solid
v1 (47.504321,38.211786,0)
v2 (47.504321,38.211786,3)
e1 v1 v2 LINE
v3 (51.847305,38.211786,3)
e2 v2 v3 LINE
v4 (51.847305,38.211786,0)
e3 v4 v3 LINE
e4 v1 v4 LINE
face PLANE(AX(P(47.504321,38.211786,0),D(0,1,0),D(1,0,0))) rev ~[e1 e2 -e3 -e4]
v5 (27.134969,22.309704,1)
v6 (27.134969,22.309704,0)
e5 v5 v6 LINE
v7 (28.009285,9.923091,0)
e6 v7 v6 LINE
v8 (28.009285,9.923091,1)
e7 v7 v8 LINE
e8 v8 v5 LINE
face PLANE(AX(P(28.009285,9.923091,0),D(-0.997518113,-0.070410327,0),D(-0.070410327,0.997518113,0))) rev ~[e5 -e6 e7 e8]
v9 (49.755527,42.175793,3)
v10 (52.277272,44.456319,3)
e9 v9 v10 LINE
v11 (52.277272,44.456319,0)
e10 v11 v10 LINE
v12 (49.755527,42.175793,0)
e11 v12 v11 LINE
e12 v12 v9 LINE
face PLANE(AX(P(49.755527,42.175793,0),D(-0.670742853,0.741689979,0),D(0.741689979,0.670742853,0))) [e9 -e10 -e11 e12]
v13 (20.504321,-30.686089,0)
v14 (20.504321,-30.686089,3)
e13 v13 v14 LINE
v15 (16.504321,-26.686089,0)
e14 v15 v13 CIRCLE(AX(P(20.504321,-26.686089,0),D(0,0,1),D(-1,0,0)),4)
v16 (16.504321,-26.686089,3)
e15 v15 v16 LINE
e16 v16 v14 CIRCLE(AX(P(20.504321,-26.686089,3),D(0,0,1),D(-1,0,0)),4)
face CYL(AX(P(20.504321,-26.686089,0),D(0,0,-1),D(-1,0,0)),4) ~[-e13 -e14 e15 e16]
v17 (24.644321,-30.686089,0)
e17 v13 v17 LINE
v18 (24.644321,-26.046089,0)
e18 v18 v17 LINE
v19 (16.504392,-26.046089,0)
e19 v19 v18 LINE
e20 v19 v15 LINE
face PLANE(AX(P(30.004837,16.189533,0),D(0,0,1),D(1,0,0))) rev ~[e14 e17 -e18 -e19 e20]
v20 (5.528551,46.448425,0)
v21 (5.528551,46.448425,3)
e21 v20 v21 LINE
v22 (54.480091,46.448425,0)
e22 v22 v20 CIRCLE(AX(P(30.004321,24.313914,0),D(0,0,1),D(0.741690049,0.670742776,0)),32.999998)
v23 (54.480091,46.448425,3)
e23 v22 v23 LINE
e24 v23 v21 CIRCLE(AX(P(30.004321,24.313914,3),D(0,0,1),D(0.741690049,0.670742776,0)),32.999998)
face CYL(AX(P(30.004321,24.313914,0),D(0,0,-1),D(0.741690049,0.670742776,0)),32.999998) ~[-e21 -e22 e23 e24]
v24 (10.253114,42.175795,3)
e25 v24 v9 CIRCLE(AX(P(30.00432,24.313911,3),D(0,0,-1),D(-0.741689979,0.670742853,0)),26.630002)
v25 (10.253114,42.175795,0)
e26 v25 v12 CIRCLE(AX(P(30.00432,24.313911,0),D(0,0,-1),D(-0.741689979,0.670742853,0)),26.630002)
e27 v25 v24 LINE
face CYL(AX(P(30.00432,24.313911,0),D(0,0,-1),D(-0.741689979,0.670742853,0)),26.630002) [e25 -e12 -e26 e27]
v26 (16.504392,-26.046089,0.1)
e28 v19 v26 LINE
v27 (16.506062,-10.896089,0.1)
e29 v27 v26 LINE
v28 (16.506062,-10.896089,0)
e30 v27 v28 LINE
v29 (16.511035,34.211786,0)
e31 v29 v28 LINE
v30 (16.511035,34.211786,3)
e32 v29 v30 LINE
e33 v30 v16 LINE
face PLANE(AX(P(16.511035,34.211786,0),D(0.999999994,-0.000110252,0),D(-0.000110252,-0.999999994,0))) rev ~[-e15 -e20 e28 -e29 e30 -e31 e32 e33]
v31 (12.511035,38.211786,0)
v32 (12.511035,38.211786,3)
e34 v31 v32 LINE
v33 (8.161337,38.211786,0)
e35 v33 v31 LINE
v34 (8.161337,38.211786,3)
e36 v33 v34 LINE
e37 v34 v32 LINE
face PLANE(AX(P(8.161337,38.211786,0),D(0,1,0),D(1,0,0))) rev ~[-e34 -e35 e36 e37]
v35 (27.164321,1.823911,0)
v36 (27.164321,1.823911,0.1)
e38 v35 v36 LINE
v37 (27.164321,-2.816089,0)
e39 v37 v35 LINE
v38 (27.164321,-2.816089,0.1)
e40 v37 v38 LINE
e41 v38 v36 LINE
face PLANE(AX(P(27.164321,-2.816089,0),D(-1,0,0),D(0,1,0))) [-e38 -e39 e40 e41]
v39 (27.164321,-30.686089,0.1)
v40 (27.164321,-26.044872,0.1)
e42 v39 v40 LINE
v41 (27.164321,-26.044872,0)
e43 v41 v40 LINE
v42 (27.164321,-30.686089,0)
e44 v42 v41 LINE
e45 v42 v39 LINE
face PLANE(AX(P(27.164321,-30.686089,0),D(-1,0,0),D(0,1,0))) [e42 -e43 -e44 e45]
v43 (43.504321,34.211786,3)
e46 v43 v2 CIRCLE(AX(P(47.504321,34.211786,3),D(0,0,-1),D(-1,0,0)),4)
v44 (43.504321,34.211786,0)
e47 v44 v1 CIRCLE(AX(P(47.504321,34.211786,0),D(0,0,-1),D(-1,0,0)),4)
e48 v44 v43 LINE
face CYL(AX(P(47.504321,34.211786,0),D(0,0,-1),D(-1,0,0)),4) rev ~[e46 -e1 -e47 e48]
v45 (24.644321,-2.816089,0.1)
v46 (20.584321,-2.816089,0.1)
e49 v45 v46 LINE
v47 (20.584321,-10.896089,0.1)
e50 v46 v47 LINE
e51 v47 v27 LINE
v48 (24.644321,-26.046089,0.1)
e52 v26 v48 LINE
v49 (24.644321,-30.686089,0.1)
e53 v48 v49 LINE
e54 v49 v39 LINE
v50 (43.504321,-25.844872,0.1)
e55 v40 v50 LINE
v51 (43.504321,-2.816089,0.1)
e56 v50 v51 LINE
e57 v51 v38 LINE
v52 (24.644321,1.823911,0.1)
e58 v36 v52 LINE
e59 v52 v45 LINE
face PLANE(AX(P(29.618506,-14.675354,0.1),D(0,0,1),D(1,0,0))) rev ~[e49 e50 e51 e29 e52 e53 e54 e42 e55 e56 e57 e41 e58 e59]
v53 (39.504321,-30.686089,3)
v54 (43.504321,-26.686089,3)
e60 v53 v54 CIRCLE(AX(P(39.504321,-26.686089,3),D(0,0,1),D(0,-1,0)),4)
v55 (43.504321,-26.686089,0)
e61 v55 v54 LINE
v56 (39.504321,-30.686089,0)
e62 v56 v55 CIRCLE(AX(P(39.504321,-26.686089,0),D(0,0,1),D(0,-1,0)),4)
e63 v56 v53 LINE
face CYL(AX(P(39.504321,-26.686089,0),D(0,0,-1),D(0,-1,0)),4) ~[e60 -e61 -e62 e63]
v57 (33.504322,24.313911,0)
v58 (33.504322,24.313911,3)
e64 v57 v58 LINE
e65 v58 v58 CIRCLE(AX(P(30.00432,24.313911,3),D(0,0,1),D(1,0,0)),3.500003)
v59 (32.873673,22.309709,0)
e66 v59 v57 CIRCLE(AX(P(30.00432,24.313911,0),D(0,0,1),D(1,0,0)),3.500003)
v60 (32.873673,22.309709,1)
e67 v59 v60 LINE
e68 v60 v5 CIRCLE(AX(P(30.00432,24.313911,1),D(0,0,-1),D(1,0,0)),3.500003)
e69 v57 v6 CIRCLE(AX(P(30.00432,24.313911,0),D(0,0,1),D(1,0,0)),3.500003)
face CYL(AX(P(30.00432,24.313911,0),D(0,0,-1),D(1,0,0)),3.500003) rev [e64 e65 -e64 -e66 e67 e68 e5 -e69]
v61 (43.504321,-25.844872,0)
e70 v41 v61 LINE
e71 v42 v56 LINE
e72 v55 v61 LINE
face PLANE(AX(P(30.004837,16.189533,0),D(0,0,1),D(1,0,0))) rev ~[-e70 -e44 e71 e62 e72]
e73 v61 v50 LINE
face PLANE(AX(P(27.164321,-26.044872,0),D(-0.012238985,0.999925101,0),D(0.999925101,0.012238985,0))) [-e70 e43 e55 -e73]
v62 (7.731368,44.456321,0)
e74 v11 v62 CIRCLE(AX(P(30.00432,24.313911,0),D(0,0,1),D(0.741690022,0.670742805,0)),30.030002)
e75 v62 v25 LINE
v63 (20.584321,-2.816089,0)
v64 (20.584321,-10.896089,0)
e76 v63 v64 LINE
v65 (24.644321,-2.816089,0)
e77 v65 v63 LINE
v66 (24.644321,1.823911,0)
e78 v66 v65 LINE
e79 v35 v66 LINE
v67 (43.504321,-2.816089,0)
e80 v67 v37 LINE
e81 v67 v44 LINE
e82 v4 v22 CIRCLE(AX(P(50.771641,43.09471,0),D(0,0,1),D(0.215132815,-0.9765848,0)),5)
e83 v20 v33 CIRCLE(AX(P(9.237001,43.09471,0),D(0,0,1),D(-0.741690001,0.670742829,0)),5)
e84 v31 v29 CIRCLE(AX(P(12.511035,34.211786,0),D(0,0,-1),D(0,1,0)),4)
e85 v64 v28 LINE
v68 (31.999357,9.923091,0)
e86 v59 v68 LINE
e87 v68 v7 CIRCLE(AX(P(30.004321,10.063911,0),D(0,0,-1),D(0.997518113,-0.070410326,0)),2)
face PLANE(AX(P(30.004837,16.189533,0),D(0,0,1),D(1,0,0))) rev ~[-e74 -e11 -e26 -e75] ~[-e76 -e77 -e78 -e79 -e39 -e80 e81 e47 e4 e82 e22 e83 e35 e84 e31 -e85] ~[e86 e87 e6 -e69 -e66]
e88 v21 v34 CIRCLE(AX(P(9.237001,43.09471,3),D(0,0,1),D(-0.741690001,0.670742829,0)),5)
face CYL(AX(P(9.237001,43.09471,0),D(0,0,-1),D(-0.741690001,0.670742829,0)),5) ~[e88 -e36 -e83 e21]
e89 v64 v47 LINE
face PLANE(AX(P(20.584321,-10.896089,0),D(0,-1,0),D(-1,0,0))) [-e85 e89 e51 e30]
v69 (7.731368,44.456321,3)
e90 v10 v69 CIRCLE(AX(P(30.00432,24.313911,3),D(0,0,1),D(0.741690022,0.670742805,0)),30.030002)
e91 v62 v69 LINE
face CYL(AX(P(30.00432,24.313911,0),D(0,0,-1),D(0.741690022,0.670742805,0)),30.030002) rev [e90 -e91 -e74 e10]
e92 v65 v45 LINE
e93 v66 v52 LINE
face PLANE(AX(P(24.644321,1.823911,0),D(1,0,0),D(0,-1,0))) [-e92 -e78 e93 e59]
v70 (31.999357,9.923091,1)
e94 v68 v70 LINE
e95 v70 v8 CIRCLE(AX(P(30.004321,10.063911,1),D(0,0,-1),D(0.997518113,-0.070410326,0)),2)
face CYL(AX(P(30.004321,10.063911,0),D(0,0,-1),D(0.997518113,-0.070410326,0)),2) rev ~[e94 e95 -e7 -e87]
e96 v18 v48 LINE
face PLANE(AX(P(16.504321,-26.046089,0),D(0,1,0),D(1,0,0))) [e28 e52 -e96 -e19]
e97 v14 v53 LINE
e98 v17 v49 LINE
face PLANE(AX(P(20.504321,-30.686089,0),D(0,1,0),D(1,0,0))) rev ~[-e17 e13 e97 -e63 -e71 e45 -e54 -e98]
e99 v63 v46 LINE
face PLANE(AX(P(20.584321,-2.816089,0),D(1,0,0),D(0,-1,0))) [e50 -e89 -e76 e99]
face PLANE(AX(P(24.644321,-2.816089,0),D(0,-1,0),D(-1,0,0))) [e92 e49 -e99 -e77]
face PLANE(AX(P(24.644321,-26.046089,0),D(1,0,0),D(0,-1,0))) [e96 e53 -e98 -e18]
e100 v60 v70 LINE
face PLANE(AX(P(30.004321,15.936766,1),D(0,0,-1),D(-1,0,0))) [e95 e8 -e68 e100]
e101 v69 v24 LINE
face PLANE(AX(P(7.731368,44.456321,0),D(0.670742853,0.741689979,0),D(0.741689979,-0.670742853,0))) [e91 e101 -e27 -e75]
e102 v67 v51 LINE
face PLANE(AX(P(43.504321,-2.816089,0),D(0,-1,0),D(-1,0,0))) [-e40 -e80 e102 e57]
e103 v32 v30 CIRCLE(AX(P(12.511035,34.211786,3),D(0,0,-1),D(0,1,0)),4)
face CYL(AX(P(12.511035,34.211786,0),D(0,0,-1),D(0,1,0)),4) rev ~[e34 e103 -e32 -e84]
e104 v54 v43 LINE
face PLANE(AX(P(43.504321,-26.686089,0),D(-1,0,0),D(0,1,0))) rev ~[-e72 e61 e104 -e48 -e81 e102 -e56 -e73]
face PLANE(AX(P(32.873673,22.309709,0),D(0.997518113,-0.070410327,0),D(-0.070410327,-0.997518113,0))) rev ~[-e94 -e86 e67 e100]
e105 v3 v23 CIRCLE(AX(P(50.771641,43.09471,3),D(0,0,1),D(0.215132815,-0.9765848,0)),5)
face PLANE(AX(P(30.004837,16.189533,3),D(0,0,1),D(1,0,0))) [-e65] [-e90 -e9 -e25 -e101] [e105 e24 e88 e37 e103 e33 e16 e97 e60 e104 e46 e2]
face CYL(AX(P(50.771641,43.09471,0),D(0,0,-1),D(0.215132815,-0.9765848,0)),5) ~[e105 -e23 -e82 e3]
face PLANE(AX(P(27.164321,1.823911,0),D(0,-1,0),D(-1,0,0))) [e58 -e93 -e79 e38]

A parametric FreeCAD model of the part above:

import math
import FreeCAD as App
import Part
import Sketcher
from FreeCAD import Vector


def add_polygon(sketch, points):
    """Adds a closed chain of lines whose ends are joined by coincident constraints."""
    first, n = sketch.GeometryCount, len(points)
    for a, b in zip(points, points[1:] + points[:1]):
        sketch.addGeometry(Part.LineSegment(App.Vector(*a, 0), App.Vector(*b, 0)), False)
    for i in range(n):
        sketch.addConstraint(Sketcher.Constraint("Coincident", first + i, 2, first + (i + 1) % n, 1))

doc = App.newDocument("Part")
body = doc.addObject("PartDesign::Body", "Body")

sketch1 = body.newObject("Sketcher::SketchObject", "Sketch")
sketch1.AttachmentSupport = (doc.getObject("XY_Plane"), [""])
sketch1.MapMode = "FlatFace"
sketch1.addGeometry(Part.LineSegment(Vector(47.5, 38.2, 0), Vector(51.8, 38.2, 0)), False)
sketch1.addGeometry(Part.ArcOfCircle(Part.Circle(Vector(50.8, 43.1, 0), Vector(0, 0, 1), 5), math.radians(-78), math.radians(42)), False)
sketch1.addGeometry(Part.ArcOfCircle(Part.Circle(Vector(30, 24.3, 0), Vector(0, 0, 1), 33), math.radians(42), math.radians(138)), False)
sketch1.addGeometry(Part.ArcOfCircle(Part.Circle(Vector(9.2, 43.1, 0), Vector(0, 0, 1), 5), math.radians(138), math.radians(258)), False)
sketch1.addGeometry(Part.LineSegment(Vector(8.2, 38.2, 0), Vector(12.5, 38.2, 0)), False)
sketch1.addGeometry(Part.ArcOfCircle(Part.Circle(Vector(12.5, 34.2, 0), Vector(0, 0, 1), 4), math.radians(0), math.radians(90)), False)
sketch1.addGeometry(Part.LineSegment(Vector(16.5, 34.2, 0), Vector(16.5, -26.7, 0)), False)
sketch1.addGeometry(Part.ArcOfCircle(Part.Circle(Vector(20.5, -26.7, 0), Vector(0, 0, 1), 4), math.radians(180), math.radians(270)), False)
sketch1.addGeometry(Part.LineSegment(Vector(20.5, -30.7, 0), Vector(39.5, -30.7, 0)), False)
sketch1.addGeometry(Part.ArcOfCircle(Part.Circle(Vector(39.5, -26.7, 0), Vector(0, 0, 1), 4), math.radians(-90), math.radians(0)), False)
sketch1.addGeometry(Part.LineSegment(Vector(43.5, -26.7, 0), Vector(43.5, 34.2, 0)), False)
sketch1.addGeometry(Part.ArcOfCircle(Part.Circle(Vector(47.5, 34.2, 0), Vector(0, 0, 1), 4), math.radians(90), math.radians(180)), False)
sketch1.addGeometry(Part.Circle(Vector(30, 24.3, 0), Vector(0, 0, 1), 3.5), False)
sketch1.addGeometry(Part.ArcOfCircle(Part.Circle(Vector(30, 24.3, 0), Vector(0, 0, 1), 30), math.radians(42), math.radians(138)), False)
sketch1.addGeometry(Part.LineSegment(Vector(52.3, 44.5, 0), Vector(49.8, 42.2, 0)), False)
sketch1.addGeometry(Part.ArcOfCircle(Part.Circle(Vector(30, 24.3, 0), Vector(0, 0, 1), 26.6), math.radians(42), math.radians(138)), False)
sketch1.addGeometry(Part.LineSegment(Vector(10.3, 42.2, 0), Vector(7.7, 44.5, 0)), False)
sketch1.addConstraint(Sketcher.Constraint("Coincident", 0, 2, 1, 1))
sketch1.addConstraint(Sketcher.Constraint("Tangent", 1, 2, 2, 1))
sketch1.addConstraint(Sketcher.Constraint("Tangent", 2, 2, 3, 1))
sketch1.addConstraint(Sketcher.Constraint("Coincident", 3, 2, 4, 1))
sketch1.addConstraint(Sketcher.Constraint("Tangent", 4, 2, 5, 2))
sketch1.addConstraint(Sketcher.Constraint("Coincident", 5, 1, 6, 1))
sketch1.addConstraint(Sketcher.Constraint("Coincident", 6, 2, 7, 1))
sketch1.addConstraint(Sketcher.Constraint("Tangent", 7, 2, 8, 1))
sketch1.addConstraint(Sketcher.Constraint("Tangent", 8, 2, 9, 1))
sketch1.addConstraint(Sketcher.Constraint("Tangent", 9, 2, 10, 1))
sketch1.addConstraint(Sketcher.Constraint("Tangent", 10, 2, 11, 2))
sketch1.addConstraint(Sketcher.Constraint("Tangent", 11, 1, 0, 1))
sketch1.addConstraint(Sketcher.Constraint("Coincident", 13, 1, 14, 1))
sketch1.addConstraint(Sketcher.Constraint("Coincident", 14, 2, 15, 1))
sketch1.addConstraint(Sketcher.Constraint("Coincident", 15, 2, 16, 1))
sketch1.addConstraint(Sketcher.Constraint("Coincident", 16, 2, 13, 2))
sketch1.addConstraint(Sketcher.Constraint("Horizontal", 0))
sketch1.addConstraint(Sketcher.Constraint("Horizontal", 4))
sketch1.addConstraint(Sketcher.Constraint("Horizontal", 8))
sketch1.addConstraint(Sketcher.Constraint("Vertical", 10))
sketch1.addConstraint(Sketcher.Constraint("Coincident", 12, 3, 2, 3))
sketch1.addConstraint(Sketcher.Constraint("Coincident", 13, 3, 2, 3))
sketch1.addConstraint(Sketcher.Constraint("Coincident", 15, 3, 2, 3))
sketch1.addConstraint(Sketcher.Constraint("Equal", 1, 3))
sketch1.addConstraint(Sketcher.Constraint("Equal", 5, 7))
sketch1.addConstraint(Sketcher.Constraint("Equal", 7, 9))
sketch1.addConstraint(Sketcher.Constraint("Equal", 9, 11))
sketch1.addConstraint(Sketcher.Constraint("Horizontal", 1, 3, 3, 3))
sketch1.addConstraint(Sketcher.Constraint("Horizontal", 5, 3, 11, 3))
sketch1.addConstraint(Sketcher.Constraint("Horizontal", 11, 3, 5, 1))
sketch1.addConstraint(Sketcher.Constraint("Horizontal", 9, 3, 6, 2))
sketch1.addConstraint(Sketcher.Constraint("Horizontal", 14, 2, 15, 2))
sketch1.addConstraint(Sketcher.Constraint("Horizontal", 13, 1, 16, 2))
sketch1.addConstraint(Sketcher.Constraint("Radius", 1, 5.0))
sketch1.addConstraint(Sketcher.Constraint("Radius", 5, 4.0))
sketch1.addConstraint(Sketcher.Constraint("DistanceX", 8, 1, 8, 2, 19.0))
sketch1.addConstraint(Sketcher.Constraint("DistanceY", 6, 2, 12, 3, 51.0))
sketch1.addConstraint(Sketcher.Constraint("Distance", 14, 3.4))
sketch1.addConstraint(Sketcher.Constraint("DistanceX", 7, 3, 2, 3, 9.5))
sketch1.addConstraint(Sketcher.Constraint("Diameter", 12, 7.000005))
sketch1.addConstraint(Sketcher.Constraint("DistanceX", 4, 1, 4, 2, 4.349698))
sketch1.addConstraint(Sketcher.Constraint("DistanceX", -1, 1, 3, 3, 9.237001))
sketch1.addConstraint(Sketcher.Constraint("Radius", 2, 32.999998))
sketch1.addConstraint(Sketcher.Constraint("Radius", 13, 30.030002))
sketch1.addConstraint(Sketcher.Constraint("DistanceY", 7, 3, 3, 3, 69.780799))
sketch1.addConstraint(Sketcher.Constraint("DistanceX", 0, 1, 0, 2, 4.342984))
sketch1.addConstraint(Sketcher.Constraint("DistanceY", -1, 1, 1, 3, 43.09471))
sketch1.addConstraint(Sketcher.Constraint("DistanceY", -1, 1, 13, 1, 44.456319))
sketch1.addConstraint(Sketcher.Constraint("DistanceX", 14, 2, 0, 2, 2.091779))
pad1 = body.newObject("PartDesign::Pad", "Pad")
pad1.Profile = sketch1
pad1.Length = 3

sketch2 = body.newObject("Sketcher::SketchObject", "Sketch001")
sketch2.AttachmentSupport = (doc.getObject("XY_Plane"), [""])
sketch2.MapMode = "FlatFace"
sketch2.addGeometry(Part.LineSegment(Vector(32, 9.9, 0), Vector(32.9, 22.3, 0)), False)
sketch2.addGeometry(Part.ArcOfCircle(Part.Circle(Vector(30, 24.3, 0), Vector(0, 0, 1), 3.5), math.radians(-145), math.radians(-35)), False)
sketch2.addGeometry(Part.LineSegment(Vector(27.1, 22.3, 0), Vector(28, 9.9, 0)), False)
sketch2.addGeometry(Part.ArcOfCircle(Part.Circle(Vector(30, 10.1, 0), Vector(0, 0, 1), 2), math.radians(-176), math.radians(-4)), False)
sketch2.addConstraint(Sketcher.Constraint("Coincident", 0, 2, 1, 2))
sketch2.addConstraint(Sketcher.Constraint("Coincident", 1, 1, 2, 1))
sketch2.addConstraint(Sketcher.Constraint("Tangent", 2, 2, 3, 1))
sketch2.addConstraint(Sketcher.Constraint("Tangent", 3, 2, 0, 1))
sketch2.addConstraint(Sketcher.Constraint("Horizontal", 0, 2, 1, 1))
sketch2.addConstraint(Sketcher.Constraint("Horizontal", 2, 2, 3, 2))
sketch2.addConstraint(Sketcher.Constraint("Radius", 3, 2.0))
sketch2.addConstraint(Sketcher.Constraint("Radius", 1, 3.500001))
sketch2.addConstraint(Sketcher.Constraint("DistanceY", 3, 3, 1, 3, 14.25))
sketch2.addConstraint(Sketcher.Constraint("DistanceX", -1, 1, 1, 3, 30.004321))
sketch2.addConstraint(Sketcher.Constraint("DistanceY", -1, 1, 1, 3, 24.313911))
sketch2.addConstraint(Sketcher.Constraint("DistanceY", -1, 1, 0, 2, 22.309709))
pocket1 = body.newObject("PartDesign::Pocket", "Pocket")
pocket1.Profile = sketch2
pocket1.Length = 1
pocket1.Reversed = True

sketch3 = body.newObject("Sketcher::SketchObject", "Sketch002")
sketch3.AttachmentSupport = (doc.getObject("XY_Plane"), [""])
sketch3.MapMode = "FlatFace"
add_polygon(sketch3, [(16.5, -26), (24.6, -26), (24.6, -30.7), (27.2, -30.7), (27.2, -26), (43.5, -25.8), (43.5, -2.8), (27.2, -2.8), (27.2, 1.8), (24.6, 1.8), (24.6, -2.8), (20.6, -2.8), (20.6, -10.9), (16.5, -10.9)])
sketch3.addConstraint(Sketcher.Constraint("Horizontal", 0))
sketch3.addConstraint(Sketcher.Constraint("Vertical", 1))
sketch3.addConstraint(Sketcher.Constraint("Horizontal", 2))
sketch3.addConstraint(Sketcher.Constraint("Vertical", 3))
sketch3.addConstraint(Sketcher.Constraint("Vertical", 5))
sketch3.addConstraint(Sketcher.Constraint("Horizontal", 6))
sketch3.addConstraint(Sketcher.Constraint("Vertical", 7))
sketch3.addConstraint(Sketcher.Constraint("Horizontal", 8))
sketch3.addConstraint(Sketcher.Constraint("Vertical", 9))
sketch3.addConstraint(Sketcher.Constraint("Horizontal", 10))
sketch3.addConstraint(Sketcher.Constraint("Vertical", 11))
sketch3.addConstraint(Sketcher.Constraint("Horizontal", 12))
sketch3.addConstraint(Sketcher.Constraint("Vertical", 13))
sketch3.addConstraint(Sketcher.Constraint("Horizontal", 6, 2, 9, 2))
sketch3.addConstraint(Sketcher.Constraint("Vertical", 3, 2, 6, 2))
sketch3.addConstraint(Sketcher.Constraint("Vertical", 1, 2, 8, 2))
sketch3.addConstraint(Sketcher.Constraint("Equal", 1, 7))
sketch3.addConstraint(Sketcher.Constraint("DistanceX", 0, 1, 0, 2, 8.14))
sketch3.addConstraint(Sketcher.Constraint("DistanceX", 2, 1, 2, 2, 2.52))
sketch3.addConstraint(Sketcher.Constraint("DistanceX", 6, 2, 6, 1, 16.34))
sketch3.addConstraint(Sketcher.Constraint("DistanceX", 10, 2, 10, 1, 4.06))
sketch3.addConstraint(Sketcher.Constraint("DistanceY", 1, 2, 1, 1, 4.64))
sketch3.addConstraint(Sketcher.Constraint("DistanceY", 11, 2, 11, 1, 8.08))
sketch3.addConstraint(Sketcher.Constraint("DistanceY", 13, 2, 13, 1, 15.15))
sketch3.addConstraint(Sketcher.Constraint("DistanceY", 3, 2, 4, 2, 0.2))
sketch3.addConstraint(Sketcher.Constraint("DistanceY", 3, 1, 3, 2, 4.641217))
sketch3.addConstraint(Sketcher.Constraint("DistanceX", -1, 1, 0, 2, 24.644321))
sketch3.addConstraint(Sketcher.Constraint("DistanceY", 0, 2, -1, 1, 26.046089))
pocket2 = body.newObject("PartDesign::Pocket", "Pocket001")
pocket2.Profile = sketch3
pocket2.Length = 0.1
pocket2.Reversed = True

doc.recompute()
